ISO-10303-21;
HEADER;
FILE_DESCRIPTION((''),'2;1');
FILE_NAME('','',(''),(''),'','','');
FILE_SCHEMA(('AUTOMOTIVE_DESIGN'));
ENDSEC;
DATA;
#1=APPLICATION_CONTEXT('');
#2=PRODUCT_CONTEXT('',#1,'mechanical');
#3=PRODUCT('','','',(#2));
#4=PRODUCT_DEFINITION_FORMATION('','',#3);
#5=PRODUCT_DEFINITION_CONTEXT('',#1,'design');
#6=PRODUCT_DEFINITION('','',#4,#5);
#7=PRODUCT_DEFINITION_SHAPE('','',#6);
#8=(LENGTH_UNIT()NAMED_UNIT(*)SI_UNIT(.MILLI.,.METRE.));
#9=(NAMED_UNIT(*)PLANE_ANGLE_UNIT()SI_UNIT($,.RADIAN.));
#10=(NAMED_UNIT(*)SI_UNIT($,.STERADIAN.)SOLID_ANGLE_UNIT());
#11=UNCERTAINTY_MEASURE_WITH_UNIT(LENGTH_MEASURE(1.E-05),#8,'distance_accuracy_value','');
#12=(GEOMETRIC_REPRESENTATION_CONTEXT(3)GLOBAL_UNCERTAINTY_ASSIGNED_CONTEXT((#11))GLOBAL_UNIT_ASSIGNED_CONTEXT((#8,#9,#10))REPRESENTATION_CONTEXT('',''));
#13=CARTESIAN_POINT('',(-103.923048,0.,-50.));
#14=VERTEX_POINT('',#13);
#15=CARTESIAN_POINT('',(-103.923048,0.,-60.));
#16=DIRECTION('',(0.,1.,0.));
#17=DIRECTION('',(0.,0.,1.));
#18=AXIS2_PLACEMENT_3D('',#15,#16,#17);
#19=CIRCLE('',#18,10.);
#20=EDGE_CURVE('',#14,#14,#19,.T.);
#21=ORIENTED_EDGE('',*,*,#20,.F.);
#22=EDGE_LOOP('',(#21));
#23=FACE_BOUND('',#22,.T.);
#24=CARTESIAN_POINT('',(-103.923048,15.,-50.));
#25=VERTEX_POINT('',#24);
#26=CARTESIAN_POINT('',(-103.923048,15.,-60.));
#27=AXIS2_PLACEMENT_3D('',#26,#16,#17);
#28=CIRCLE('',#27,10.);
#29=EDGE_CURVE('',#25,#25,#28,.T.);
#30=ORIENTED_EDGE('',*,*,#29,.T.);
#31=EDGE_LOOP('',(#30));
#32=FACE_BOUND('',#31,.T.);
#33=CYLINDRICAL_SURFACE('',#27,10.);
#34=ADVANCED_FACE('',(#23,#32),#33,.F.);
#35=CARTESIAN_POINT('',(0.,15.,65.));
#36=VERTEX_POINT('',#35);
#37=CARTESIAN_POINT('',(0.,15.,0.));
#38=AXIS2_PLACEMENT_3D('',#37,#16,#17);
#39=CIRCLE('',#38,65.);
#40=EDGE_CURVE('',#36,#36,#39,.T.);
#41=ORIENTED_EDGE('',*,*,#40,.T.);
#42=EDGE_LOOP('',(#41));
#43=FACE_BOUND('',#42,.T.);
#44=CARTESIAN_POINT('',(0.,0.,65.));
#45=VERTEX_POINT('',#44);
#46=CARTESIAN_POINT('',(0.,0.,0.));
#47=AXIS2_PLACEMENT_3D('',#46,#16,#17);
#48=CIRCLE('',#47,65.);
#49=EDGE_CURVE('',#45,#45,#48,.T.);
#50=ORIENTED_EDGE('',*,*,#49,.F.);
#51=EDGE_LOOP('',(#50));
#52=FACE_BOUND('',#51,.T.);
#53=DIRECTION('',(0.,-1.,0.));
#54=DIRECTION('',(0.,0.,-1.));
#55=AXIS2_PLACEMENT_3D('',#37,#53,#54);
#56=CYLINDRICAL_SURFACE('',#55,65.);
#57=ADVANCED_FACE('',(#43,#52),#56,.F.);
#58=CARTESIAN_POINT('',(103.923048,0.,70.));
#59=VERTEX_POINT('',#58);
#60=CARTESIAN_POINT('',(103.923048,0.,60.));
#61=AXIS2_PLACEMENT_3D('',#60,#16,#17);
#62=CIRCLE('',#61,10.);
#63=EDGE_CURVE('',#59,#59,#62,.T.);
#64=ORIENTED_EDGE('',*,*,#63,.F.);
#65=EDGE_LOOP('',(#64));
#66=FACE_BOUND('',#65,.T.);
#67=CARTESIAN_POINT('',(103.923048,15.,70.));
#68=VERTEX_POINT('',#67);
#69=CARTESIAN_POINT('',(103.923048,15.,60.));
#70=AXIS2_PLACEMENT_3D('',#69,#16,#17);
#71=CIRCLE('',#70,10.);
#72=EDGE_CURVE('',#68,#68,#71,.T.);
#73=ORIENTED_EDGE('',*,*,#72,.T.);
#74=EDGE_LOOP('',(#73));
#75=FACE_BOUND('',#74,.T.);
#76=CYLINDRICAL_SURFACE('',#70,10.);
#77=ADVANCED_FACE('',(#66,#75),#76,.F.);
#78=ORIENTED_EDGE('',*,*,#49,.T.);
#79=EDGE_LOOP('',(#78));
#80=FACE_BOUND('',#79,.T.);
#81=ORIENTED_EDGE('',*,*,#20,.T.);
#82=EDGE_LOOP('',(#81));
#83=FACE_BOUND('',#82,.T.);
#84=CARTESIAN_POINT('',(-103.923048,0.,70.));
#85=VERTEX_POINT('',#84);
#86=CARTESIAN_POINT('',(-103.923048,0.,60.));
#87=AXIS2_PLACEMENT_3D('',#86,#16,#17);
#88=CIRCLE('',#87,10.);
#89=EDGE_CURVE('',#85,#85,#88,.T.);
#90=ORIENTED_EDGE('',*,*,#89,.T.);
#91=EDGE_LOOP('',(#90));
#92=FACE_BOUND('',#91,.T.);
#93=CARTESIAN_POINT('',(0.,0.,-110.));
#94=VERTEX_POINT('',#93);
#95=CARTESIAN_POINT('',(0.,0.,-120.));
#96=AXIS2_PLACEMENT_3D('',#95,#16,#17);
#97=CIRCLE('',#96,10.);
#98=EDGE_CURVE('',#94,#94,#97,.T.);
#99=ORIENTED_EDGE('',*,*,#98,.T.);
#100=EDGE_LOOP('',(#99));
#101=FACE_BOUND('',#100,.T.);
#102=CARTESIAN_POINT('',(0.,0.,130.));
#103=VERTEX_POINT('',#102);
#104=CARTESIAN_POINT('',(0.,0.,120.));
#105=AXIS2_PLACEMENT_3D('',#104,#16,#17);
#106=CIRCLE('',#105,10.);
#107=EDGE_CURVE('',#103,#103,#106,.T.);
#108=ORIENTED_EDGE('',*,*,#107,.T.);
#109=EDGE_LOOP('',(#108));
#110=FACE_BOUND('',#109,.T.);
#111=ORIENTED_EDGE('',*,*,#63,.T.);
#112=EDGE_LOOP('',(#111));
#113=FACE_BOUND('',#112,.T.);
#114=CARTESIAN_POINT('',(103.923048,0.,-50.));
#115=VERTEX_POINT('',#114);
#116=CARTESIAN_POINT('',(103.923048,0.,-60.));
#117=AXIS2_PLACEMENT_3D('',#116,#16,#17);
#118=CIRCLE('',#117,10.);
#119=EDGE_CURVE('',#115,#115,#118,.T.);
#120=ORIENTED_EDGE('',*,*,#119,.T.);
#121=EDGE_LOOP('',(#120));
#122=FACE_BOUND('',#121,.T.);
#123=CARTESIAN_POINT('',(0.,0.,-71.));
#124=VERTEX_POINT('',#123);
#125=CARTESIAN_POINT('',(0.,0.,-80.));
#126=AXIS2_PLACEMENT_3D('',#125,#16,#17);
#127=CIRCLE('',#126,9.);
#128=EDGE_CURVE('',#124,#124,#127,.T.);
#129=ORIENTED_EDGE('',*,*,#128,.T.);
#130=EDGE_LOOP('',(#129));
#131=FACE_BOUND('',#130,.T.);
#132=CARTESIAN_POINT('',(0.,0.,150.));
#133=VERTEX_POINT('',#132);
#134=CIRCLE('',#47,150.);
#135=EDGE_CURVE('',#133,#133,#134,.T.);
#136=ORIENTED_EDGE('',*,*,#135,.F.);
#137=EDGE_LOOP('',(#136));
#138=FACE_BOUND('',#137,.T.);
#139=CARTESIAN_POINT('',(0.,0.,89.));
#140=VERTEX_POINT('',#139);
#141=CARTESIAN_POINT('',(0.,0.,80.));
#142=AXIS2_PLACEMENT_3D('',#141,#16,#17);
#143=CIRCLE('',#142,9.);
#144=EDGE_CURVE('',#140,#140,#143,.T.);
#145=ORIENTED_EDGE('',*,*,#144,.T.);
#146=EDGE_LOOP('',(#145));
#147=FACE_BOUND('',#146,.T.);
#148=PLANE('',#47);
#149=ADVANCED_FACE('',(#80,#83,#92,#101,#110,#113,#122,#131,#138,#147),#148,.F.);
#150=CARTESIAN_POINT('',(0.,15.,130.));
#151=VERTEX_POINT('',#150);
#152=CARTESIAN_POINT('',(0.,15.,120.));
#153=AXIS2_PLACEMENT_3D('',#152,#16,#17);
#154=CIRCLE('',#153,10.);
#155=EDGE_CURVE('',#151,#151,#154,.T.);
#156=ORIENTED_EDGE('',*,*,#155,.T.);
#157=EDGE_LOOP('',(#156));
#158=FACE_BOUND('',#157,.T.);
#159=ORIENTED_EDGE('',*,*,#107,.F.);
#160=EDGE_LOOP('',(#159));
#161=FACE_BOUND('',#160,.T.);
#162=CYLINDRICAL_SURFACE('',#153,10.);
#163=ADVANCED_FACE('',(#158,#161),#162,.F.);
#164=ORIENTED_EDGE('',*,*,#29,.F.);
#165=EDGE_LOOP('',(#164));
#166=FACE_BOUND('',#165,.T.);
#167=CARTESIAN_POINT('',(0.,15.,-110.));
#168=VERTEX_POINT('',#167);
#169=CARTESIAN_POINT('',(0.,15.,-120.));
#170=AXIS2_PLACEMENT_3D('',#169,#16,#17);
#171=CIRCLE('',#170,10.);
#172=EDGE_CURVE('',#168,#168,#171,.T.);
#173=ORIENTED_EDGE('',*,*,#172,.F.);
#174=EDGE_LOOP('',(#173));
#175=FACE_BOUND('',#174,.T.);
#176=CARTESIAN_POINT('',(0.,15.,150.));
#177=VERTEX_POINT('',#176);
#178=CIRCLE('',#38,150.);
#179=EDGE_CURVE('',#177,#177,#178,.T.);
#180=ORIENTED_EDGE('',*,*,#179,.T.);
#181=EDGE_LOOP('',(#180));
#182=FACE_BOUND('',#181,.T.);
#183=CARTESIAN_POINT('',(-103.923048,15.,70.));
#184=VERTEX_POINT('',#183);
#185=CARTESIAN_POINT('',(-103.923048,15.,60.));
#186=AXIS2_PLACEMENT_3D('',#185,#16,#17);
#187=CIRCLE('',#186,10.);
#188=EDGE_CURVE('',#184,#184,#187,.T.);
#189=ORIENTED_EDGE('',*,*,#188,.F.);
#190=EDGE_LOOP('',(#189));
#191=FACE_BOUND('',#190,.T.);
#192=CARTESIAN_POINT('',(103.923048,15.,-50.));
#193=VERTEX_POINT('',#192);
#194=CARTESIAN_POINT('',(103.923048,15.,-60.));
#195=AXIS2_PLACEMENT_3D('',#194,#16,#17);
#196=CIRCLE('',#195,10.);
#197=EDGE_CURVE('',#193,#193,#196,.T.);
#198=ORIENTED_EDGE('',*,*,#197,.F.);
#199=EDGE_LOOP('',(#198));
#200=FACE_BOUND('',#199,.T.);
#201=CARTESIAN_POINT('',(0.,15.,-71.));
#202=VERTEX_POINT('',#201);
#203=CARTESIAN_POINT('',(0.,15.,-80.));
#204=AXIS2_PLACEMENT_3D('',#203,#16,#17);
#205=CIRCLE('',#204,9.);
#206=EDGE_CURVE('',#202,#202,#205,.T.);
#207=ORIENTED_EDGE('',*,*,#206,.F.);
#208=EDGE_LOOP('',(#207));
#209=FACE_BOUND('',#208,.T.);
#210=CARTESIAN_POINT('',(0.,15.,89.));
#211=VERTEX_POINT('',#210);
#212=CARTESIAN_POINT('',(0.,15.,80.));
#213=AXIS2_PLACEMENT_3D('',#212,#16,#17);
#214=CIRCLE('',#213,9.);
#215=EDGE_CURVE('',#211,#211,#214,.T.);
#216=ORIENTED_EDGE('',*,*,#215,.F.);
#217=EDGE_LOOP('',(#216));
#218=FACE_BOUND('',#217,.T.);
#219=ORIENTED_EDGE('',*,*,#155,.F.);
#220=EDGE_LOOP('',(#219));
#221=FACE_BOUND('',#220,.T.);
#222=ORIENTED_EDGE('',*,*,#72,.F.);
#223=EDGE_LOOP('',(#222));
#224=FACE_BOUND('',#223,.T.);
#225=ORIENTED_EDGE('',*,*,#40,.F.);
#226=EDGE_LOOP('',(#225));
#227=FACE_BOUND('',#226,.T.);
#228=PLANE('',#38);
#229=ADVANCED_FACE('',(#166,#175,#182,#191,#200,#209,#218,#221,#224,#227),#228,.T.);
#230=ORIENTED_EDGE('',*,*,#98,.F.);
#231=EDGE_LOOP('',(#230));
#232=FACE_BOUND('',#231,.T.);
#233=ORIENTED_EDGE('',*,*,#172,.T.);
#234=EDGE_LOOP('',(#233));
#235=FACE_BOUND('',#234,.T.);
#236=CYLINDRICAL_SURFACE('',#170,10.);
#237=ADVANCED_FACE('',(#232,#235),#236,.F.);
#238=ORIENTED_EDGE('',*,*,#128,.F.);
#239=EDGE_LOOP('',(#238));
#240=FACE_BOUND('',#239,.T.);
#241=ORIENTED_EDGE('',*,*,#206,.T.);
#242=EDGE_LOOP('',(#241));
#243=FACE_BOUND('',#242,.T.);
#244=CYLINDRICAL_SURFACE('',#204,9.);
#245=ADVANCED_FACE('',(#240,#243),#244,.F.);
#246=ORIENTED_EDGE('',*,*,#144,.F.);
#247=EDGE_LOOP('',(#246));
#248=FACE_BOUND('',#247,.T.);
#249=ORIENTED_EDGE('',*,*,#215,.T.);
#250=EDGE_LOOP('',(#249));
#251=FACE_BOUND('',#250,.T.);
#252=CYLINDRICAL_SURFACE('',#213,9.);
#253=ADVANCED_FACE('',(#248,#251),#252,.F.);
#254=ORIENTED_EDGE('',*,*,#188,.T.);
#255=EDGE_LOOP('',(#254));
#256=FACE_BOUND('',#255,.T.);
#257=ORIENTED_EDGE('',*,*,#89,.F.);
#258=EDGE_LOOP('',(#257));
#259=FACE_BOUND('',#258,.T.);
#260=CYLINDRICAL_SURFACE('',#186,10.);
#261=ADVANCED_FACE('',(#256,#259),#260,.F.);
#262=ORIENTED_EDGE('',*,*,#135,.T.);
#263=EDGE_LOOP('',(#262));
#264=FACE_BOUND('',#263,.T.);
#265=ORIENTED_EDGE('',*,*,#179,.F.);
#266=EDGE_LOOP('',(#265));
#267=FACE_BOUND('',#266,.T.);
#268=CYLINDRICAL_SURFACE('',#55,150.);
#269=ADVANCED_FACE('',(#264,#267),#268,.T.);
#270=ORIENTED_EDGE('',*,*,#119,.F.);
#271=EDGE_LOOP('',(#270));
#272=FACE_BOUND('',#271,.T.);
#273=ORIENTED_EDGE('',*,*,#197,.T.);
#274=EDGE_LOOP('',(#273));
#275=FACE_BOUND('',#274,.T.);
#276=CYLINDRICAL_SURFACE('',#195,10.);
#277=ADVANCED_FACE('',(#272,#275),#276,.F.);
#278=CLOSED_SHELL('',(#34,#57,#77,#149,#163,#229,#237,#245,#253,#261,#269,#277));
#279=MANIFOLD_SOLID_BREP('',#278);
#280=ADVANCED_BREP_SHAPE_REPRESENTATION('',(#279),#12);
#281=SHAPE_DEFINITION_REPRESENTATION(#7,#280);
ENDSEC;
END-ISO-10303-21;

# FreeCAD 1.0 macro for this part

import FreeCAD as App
import Part
import Sketcher
from FreeCAD import Vector

doc = App.newDocument("Part")
body = doc.addObject("PartDesign::Body", "Body")

# Sketch on XZ plane
sketch1 = doc.addObject("Sketcher::SketchObject", "Sketch")
body.addObject(sketch1)
sketch1.AttachmentSupport = (doc.XZ_Plane, [""])
sketch1.MapMode = "FlatFace"
sketch1.addGeometry([
    Part.Circle(Vector(0, 0, 0), Vector(0, 0, 1), 150),
    Part.Circle(Vector(0, 0, 0), Vector(0, 0, 1), 65),
], False)
sketch1.addConstraint([
    Sketcher.Constraint("Coincident", 0, 3, -1, 1),
    Sketcher.Constraint("Coincident", 1, 3, -1, 1),
    Sketcher.Constraint("Diameter", 0, 300.0),
    Sketcher.Constraint("Diameter", 1, 130.0),
])
pad1 = doc.addObject("PartDesign::Pad", "Pad")
body.addObject(pad1)
pad1.Profile = sketch1
pad1.Length = 15
pad1.Reversed = True

# Sketch on XZ plane
sketch2 = doc.addObject("Sketcher::SketchObject", "Sketch001")
body.addObject(sketch2)
sketch2.AttachmentSupport = (doc.XZ_Plane, [""])
sketch2.MapMode = "FlatFace"
sketch2.AttachmentOffset = App.Placement(Vector(0, 0, -15), App.Rotation())
sketch2.addGeometry(Part.Circle(Vector(0, -120, 0), Vector(0, 0, 1), 10), False)
sketch2.addConstraint([
    Sketcher.Constraint("PointOnObject", 0, 3, -2),
    Sketcher.Constraint("Diameter", 0, 20.0),
    Sketcher.Constraint("DistanceY", 0, 3, -1, 1, 120.0),
])
doc.recompute()
hole = doc.addObject("PartDesign::Hole", "Hole")
body.addObject(hole)
hole.Profile = sketch2
hole.ThreadType = "None"
hole.Diameter = 20
hole.DepthType = "ThroughAll"
hole.Reversed = True
doc.recompute()

polarpattern = doc.addObject("PartDesign::PolarPattern", "PolarPattern")
body.addObject(polarpattern)
polarpattern.Originals = [hole]
polarpattern.Axis = (doc.Y_Axis, [""])
polarpattern.Angle = 360
polarpattern.Occurrences = 6
body.Tip = polarpattern

# Sketch on XZ plane
sketch3 = doc.addObject("Sketcher::SketchObject", "Sketch002")
body.addObject(sketch3)
sketch3.AttachmentSupport = (doc.XZ_Plane, [""])
sketch3.MapMode = "FlatFace"
sketch3.AttachmentOffset = App.Placement(Vector(0, 0, -15), App.Rotation())
sketch3.addGeometry(Part.Circle(Vector(0, -80, 0), Vector(0, 0, 1), 9), False)
sketch3.addConstraint([
    Sketcher.Constraint("PointOnObject", 0, 3, -2),
    Sketcher.Constraint("Diameter", 0, 18.0),
    Sketcher.Constraint("DistanceY", 0, 3, -1, 1, 80.0),
])
doc.recompute()
hole2 = doc.addObject("PartDesign::Hole", "Hole001")
body.addObject(hole2)
hole2.Profile = sketch3
hole2.ThreadType = "None"
hole2.Diameter = 18
hole2.DepthType = "ThroughAll"
hole2.Reversed = True
doc.recompute()

polarpattern2 = doc.addObject("PartDesign::PolarPattern", "PolarPattern001")
body.addObject(polarpattern2)
polarpattern2.Originals = [hole2]
polarpattern2.Axis = (doc.Y_Axis, [""])
polarpattern2.Angle = 360
polarpattern2.Occurrences = 2
body.Tip = polarpattern2

doc.recompute()
